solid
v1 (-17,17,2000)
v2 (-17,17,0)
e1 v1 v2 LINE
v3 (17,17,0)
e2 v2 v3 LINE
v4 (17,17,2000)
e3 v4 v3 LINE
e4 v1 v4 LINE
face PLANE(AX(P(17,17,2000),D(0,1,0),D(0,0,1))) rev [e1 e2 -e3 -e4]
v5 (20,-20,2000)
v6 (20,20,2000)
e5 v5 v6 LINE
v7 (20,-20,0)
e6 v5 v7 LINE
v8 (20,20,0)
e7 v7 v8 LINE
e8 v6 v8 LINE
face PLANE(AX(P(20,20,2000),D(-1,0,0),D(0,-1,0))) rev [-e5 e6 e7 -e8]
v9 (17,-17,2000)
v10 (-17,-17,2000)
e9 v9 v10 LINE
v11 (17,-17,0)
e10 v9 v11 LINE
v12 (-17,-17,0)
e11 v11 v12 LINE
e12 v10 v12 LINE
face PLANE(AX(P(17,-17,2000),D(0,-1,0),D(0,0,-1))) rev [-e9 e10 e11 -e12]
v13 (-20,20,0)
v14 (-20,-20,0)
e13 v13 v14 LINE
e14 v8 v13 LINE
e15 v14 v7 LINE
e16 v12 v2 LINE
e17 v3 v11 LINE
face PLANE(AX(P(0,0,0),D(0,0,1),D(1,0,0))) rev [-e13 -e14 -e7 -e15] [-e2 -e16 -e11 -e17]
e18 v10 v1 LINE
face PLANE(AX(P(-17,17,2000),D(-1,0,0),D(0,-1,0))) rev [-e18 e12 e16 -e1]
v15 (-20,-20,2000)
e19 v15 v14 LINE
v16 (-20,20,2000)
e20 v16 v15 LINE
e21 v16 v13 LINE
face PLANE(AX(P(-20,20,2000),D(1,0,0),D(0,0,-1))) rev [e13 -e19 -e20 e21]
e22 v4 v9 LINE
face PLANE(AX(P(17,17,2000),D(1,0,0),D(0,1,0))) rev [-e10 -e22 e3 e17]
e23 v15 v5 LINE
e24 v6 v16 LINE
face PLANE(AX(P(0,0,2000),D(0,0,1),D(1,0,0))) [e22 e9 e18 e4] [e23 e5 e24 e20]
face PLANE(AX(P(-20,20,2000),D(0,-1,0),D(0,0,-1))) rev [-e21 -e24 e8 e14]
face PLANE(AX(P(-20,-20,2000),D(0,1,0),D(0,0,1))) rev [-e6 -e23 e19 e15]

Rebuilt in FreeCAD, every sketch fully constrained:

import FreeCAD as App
import Part
import Sketcher

V = App.Vector

doc = App.newDocument("Part")
body = doc.addObject("PartDesign::Body", "Body")

# Sketch on XY plane
sketch1 = doc.addObject("Sketcher::SketchObject", "Sketch")
body.addObject(sketch1)
sketch1.AttachmentSupport = (doc.XY_Plane, [""])
sketch1.MapMode = "FlatFace"
sketch1.addGeometry([
    Part.LineSegment(V(-20, 20, 0), V(-20, -20, 0)),
    Part.LineSegment(V(-20, -20, 0), V(20, -20, 0)),
    Part.LineSegment(V(20, -20, 0), V(20, 20, 0)),
    Part.LineSegment(V(20, 20, 0), V(-20, 20, 0)),
], False)
sketch1.addConstraint([
    Sketcher.Constraint("Coincident", 0, 2, 1, 1),
    Sketcher.Constraint("Coincident", 1, 2, 2, 1),
    Sketcher.Constraint("Coincident", 2, 2, 3, 1),
    Sketcher.Constraint("Coincident", 3, 2, 0, 1),
    Sketcher.Constraint("Vertical", 0),
    Sketcher.Constraint("Horizontal", 1),
    Sketcher.Constraint("Vertical", 2),
    Sketcher.Constraint("Horizontal", 3),
    Sketcher.Constraint("Symmetric", 0, 2, 2, 2, -1, 1),
    Sketcher.Constraint("Equal", 3, 0),
    Sketcher.Constraint("DistanceX", 1, 1, 1, 2, 40.0),
])
pad1 = doc.addObject("PartDesign::Pad", "Pad")
body.addObject(pad1)
pad1.Profile = sketch1
pad1.Length = 2000

# Sketch on XY plane
sketch2 = doc.addObject("Sketcher::SketchObject", "Sketch001")
body.addObject(sketch2)
sketch2.AttachmentSupport = (doc.XY_Plane, [""])
sketch2.MapMode = "FlatFace"
sketch2.addGeometry([
    Part.LineSegment(V(17, 17, 0), V(17, -17, 0)),
    Part.LineSegment(V(17, -17, 0), V(-17, -17, 0)),
    Part.LineSegment(V(-17, -17, 0), V(-17, 17, 0)),
    Part.LineSegment(V(-17, 17, 0), V(17, 17, 0)),
], False)
sketch2.addConstraint([
    Sketcher.Constraint("Coincident", 0, 2, 1, 1),
    Sketcher.Constraint("Coincident", 1, 2, 2, 1),
    Sketcher.Constraint("Coincident", 2, 2, 3, 1),
    Sketcher.Constraint("Coincident", 3, 2, 0, 1),
    Sketcher.Constraint("Vertical", 0),
    Sketcher.Constraint("Horizontal", 1),
    Sketcher.Constraint("Vertical", 2),
    Sketcher.Constraint("Horizontal", 3),
    Sketcher.Constraint("Symmetric", 0, 2, 2, 2, -1, 1),
    Sketcher.Constraint("Equal", 3, 0),
    Sketcher.Constraint("DistanceX", 1, 2, 1, 1, 34.0),
])
pocket1 = doc.addObject("PartDesign::Pocket", "Pocket")
body.addObject(pocket1)
pocket1.Profile = sketch2
pocket1.Length = 2000
pocket1.Reversed = True

doc.recompute()
